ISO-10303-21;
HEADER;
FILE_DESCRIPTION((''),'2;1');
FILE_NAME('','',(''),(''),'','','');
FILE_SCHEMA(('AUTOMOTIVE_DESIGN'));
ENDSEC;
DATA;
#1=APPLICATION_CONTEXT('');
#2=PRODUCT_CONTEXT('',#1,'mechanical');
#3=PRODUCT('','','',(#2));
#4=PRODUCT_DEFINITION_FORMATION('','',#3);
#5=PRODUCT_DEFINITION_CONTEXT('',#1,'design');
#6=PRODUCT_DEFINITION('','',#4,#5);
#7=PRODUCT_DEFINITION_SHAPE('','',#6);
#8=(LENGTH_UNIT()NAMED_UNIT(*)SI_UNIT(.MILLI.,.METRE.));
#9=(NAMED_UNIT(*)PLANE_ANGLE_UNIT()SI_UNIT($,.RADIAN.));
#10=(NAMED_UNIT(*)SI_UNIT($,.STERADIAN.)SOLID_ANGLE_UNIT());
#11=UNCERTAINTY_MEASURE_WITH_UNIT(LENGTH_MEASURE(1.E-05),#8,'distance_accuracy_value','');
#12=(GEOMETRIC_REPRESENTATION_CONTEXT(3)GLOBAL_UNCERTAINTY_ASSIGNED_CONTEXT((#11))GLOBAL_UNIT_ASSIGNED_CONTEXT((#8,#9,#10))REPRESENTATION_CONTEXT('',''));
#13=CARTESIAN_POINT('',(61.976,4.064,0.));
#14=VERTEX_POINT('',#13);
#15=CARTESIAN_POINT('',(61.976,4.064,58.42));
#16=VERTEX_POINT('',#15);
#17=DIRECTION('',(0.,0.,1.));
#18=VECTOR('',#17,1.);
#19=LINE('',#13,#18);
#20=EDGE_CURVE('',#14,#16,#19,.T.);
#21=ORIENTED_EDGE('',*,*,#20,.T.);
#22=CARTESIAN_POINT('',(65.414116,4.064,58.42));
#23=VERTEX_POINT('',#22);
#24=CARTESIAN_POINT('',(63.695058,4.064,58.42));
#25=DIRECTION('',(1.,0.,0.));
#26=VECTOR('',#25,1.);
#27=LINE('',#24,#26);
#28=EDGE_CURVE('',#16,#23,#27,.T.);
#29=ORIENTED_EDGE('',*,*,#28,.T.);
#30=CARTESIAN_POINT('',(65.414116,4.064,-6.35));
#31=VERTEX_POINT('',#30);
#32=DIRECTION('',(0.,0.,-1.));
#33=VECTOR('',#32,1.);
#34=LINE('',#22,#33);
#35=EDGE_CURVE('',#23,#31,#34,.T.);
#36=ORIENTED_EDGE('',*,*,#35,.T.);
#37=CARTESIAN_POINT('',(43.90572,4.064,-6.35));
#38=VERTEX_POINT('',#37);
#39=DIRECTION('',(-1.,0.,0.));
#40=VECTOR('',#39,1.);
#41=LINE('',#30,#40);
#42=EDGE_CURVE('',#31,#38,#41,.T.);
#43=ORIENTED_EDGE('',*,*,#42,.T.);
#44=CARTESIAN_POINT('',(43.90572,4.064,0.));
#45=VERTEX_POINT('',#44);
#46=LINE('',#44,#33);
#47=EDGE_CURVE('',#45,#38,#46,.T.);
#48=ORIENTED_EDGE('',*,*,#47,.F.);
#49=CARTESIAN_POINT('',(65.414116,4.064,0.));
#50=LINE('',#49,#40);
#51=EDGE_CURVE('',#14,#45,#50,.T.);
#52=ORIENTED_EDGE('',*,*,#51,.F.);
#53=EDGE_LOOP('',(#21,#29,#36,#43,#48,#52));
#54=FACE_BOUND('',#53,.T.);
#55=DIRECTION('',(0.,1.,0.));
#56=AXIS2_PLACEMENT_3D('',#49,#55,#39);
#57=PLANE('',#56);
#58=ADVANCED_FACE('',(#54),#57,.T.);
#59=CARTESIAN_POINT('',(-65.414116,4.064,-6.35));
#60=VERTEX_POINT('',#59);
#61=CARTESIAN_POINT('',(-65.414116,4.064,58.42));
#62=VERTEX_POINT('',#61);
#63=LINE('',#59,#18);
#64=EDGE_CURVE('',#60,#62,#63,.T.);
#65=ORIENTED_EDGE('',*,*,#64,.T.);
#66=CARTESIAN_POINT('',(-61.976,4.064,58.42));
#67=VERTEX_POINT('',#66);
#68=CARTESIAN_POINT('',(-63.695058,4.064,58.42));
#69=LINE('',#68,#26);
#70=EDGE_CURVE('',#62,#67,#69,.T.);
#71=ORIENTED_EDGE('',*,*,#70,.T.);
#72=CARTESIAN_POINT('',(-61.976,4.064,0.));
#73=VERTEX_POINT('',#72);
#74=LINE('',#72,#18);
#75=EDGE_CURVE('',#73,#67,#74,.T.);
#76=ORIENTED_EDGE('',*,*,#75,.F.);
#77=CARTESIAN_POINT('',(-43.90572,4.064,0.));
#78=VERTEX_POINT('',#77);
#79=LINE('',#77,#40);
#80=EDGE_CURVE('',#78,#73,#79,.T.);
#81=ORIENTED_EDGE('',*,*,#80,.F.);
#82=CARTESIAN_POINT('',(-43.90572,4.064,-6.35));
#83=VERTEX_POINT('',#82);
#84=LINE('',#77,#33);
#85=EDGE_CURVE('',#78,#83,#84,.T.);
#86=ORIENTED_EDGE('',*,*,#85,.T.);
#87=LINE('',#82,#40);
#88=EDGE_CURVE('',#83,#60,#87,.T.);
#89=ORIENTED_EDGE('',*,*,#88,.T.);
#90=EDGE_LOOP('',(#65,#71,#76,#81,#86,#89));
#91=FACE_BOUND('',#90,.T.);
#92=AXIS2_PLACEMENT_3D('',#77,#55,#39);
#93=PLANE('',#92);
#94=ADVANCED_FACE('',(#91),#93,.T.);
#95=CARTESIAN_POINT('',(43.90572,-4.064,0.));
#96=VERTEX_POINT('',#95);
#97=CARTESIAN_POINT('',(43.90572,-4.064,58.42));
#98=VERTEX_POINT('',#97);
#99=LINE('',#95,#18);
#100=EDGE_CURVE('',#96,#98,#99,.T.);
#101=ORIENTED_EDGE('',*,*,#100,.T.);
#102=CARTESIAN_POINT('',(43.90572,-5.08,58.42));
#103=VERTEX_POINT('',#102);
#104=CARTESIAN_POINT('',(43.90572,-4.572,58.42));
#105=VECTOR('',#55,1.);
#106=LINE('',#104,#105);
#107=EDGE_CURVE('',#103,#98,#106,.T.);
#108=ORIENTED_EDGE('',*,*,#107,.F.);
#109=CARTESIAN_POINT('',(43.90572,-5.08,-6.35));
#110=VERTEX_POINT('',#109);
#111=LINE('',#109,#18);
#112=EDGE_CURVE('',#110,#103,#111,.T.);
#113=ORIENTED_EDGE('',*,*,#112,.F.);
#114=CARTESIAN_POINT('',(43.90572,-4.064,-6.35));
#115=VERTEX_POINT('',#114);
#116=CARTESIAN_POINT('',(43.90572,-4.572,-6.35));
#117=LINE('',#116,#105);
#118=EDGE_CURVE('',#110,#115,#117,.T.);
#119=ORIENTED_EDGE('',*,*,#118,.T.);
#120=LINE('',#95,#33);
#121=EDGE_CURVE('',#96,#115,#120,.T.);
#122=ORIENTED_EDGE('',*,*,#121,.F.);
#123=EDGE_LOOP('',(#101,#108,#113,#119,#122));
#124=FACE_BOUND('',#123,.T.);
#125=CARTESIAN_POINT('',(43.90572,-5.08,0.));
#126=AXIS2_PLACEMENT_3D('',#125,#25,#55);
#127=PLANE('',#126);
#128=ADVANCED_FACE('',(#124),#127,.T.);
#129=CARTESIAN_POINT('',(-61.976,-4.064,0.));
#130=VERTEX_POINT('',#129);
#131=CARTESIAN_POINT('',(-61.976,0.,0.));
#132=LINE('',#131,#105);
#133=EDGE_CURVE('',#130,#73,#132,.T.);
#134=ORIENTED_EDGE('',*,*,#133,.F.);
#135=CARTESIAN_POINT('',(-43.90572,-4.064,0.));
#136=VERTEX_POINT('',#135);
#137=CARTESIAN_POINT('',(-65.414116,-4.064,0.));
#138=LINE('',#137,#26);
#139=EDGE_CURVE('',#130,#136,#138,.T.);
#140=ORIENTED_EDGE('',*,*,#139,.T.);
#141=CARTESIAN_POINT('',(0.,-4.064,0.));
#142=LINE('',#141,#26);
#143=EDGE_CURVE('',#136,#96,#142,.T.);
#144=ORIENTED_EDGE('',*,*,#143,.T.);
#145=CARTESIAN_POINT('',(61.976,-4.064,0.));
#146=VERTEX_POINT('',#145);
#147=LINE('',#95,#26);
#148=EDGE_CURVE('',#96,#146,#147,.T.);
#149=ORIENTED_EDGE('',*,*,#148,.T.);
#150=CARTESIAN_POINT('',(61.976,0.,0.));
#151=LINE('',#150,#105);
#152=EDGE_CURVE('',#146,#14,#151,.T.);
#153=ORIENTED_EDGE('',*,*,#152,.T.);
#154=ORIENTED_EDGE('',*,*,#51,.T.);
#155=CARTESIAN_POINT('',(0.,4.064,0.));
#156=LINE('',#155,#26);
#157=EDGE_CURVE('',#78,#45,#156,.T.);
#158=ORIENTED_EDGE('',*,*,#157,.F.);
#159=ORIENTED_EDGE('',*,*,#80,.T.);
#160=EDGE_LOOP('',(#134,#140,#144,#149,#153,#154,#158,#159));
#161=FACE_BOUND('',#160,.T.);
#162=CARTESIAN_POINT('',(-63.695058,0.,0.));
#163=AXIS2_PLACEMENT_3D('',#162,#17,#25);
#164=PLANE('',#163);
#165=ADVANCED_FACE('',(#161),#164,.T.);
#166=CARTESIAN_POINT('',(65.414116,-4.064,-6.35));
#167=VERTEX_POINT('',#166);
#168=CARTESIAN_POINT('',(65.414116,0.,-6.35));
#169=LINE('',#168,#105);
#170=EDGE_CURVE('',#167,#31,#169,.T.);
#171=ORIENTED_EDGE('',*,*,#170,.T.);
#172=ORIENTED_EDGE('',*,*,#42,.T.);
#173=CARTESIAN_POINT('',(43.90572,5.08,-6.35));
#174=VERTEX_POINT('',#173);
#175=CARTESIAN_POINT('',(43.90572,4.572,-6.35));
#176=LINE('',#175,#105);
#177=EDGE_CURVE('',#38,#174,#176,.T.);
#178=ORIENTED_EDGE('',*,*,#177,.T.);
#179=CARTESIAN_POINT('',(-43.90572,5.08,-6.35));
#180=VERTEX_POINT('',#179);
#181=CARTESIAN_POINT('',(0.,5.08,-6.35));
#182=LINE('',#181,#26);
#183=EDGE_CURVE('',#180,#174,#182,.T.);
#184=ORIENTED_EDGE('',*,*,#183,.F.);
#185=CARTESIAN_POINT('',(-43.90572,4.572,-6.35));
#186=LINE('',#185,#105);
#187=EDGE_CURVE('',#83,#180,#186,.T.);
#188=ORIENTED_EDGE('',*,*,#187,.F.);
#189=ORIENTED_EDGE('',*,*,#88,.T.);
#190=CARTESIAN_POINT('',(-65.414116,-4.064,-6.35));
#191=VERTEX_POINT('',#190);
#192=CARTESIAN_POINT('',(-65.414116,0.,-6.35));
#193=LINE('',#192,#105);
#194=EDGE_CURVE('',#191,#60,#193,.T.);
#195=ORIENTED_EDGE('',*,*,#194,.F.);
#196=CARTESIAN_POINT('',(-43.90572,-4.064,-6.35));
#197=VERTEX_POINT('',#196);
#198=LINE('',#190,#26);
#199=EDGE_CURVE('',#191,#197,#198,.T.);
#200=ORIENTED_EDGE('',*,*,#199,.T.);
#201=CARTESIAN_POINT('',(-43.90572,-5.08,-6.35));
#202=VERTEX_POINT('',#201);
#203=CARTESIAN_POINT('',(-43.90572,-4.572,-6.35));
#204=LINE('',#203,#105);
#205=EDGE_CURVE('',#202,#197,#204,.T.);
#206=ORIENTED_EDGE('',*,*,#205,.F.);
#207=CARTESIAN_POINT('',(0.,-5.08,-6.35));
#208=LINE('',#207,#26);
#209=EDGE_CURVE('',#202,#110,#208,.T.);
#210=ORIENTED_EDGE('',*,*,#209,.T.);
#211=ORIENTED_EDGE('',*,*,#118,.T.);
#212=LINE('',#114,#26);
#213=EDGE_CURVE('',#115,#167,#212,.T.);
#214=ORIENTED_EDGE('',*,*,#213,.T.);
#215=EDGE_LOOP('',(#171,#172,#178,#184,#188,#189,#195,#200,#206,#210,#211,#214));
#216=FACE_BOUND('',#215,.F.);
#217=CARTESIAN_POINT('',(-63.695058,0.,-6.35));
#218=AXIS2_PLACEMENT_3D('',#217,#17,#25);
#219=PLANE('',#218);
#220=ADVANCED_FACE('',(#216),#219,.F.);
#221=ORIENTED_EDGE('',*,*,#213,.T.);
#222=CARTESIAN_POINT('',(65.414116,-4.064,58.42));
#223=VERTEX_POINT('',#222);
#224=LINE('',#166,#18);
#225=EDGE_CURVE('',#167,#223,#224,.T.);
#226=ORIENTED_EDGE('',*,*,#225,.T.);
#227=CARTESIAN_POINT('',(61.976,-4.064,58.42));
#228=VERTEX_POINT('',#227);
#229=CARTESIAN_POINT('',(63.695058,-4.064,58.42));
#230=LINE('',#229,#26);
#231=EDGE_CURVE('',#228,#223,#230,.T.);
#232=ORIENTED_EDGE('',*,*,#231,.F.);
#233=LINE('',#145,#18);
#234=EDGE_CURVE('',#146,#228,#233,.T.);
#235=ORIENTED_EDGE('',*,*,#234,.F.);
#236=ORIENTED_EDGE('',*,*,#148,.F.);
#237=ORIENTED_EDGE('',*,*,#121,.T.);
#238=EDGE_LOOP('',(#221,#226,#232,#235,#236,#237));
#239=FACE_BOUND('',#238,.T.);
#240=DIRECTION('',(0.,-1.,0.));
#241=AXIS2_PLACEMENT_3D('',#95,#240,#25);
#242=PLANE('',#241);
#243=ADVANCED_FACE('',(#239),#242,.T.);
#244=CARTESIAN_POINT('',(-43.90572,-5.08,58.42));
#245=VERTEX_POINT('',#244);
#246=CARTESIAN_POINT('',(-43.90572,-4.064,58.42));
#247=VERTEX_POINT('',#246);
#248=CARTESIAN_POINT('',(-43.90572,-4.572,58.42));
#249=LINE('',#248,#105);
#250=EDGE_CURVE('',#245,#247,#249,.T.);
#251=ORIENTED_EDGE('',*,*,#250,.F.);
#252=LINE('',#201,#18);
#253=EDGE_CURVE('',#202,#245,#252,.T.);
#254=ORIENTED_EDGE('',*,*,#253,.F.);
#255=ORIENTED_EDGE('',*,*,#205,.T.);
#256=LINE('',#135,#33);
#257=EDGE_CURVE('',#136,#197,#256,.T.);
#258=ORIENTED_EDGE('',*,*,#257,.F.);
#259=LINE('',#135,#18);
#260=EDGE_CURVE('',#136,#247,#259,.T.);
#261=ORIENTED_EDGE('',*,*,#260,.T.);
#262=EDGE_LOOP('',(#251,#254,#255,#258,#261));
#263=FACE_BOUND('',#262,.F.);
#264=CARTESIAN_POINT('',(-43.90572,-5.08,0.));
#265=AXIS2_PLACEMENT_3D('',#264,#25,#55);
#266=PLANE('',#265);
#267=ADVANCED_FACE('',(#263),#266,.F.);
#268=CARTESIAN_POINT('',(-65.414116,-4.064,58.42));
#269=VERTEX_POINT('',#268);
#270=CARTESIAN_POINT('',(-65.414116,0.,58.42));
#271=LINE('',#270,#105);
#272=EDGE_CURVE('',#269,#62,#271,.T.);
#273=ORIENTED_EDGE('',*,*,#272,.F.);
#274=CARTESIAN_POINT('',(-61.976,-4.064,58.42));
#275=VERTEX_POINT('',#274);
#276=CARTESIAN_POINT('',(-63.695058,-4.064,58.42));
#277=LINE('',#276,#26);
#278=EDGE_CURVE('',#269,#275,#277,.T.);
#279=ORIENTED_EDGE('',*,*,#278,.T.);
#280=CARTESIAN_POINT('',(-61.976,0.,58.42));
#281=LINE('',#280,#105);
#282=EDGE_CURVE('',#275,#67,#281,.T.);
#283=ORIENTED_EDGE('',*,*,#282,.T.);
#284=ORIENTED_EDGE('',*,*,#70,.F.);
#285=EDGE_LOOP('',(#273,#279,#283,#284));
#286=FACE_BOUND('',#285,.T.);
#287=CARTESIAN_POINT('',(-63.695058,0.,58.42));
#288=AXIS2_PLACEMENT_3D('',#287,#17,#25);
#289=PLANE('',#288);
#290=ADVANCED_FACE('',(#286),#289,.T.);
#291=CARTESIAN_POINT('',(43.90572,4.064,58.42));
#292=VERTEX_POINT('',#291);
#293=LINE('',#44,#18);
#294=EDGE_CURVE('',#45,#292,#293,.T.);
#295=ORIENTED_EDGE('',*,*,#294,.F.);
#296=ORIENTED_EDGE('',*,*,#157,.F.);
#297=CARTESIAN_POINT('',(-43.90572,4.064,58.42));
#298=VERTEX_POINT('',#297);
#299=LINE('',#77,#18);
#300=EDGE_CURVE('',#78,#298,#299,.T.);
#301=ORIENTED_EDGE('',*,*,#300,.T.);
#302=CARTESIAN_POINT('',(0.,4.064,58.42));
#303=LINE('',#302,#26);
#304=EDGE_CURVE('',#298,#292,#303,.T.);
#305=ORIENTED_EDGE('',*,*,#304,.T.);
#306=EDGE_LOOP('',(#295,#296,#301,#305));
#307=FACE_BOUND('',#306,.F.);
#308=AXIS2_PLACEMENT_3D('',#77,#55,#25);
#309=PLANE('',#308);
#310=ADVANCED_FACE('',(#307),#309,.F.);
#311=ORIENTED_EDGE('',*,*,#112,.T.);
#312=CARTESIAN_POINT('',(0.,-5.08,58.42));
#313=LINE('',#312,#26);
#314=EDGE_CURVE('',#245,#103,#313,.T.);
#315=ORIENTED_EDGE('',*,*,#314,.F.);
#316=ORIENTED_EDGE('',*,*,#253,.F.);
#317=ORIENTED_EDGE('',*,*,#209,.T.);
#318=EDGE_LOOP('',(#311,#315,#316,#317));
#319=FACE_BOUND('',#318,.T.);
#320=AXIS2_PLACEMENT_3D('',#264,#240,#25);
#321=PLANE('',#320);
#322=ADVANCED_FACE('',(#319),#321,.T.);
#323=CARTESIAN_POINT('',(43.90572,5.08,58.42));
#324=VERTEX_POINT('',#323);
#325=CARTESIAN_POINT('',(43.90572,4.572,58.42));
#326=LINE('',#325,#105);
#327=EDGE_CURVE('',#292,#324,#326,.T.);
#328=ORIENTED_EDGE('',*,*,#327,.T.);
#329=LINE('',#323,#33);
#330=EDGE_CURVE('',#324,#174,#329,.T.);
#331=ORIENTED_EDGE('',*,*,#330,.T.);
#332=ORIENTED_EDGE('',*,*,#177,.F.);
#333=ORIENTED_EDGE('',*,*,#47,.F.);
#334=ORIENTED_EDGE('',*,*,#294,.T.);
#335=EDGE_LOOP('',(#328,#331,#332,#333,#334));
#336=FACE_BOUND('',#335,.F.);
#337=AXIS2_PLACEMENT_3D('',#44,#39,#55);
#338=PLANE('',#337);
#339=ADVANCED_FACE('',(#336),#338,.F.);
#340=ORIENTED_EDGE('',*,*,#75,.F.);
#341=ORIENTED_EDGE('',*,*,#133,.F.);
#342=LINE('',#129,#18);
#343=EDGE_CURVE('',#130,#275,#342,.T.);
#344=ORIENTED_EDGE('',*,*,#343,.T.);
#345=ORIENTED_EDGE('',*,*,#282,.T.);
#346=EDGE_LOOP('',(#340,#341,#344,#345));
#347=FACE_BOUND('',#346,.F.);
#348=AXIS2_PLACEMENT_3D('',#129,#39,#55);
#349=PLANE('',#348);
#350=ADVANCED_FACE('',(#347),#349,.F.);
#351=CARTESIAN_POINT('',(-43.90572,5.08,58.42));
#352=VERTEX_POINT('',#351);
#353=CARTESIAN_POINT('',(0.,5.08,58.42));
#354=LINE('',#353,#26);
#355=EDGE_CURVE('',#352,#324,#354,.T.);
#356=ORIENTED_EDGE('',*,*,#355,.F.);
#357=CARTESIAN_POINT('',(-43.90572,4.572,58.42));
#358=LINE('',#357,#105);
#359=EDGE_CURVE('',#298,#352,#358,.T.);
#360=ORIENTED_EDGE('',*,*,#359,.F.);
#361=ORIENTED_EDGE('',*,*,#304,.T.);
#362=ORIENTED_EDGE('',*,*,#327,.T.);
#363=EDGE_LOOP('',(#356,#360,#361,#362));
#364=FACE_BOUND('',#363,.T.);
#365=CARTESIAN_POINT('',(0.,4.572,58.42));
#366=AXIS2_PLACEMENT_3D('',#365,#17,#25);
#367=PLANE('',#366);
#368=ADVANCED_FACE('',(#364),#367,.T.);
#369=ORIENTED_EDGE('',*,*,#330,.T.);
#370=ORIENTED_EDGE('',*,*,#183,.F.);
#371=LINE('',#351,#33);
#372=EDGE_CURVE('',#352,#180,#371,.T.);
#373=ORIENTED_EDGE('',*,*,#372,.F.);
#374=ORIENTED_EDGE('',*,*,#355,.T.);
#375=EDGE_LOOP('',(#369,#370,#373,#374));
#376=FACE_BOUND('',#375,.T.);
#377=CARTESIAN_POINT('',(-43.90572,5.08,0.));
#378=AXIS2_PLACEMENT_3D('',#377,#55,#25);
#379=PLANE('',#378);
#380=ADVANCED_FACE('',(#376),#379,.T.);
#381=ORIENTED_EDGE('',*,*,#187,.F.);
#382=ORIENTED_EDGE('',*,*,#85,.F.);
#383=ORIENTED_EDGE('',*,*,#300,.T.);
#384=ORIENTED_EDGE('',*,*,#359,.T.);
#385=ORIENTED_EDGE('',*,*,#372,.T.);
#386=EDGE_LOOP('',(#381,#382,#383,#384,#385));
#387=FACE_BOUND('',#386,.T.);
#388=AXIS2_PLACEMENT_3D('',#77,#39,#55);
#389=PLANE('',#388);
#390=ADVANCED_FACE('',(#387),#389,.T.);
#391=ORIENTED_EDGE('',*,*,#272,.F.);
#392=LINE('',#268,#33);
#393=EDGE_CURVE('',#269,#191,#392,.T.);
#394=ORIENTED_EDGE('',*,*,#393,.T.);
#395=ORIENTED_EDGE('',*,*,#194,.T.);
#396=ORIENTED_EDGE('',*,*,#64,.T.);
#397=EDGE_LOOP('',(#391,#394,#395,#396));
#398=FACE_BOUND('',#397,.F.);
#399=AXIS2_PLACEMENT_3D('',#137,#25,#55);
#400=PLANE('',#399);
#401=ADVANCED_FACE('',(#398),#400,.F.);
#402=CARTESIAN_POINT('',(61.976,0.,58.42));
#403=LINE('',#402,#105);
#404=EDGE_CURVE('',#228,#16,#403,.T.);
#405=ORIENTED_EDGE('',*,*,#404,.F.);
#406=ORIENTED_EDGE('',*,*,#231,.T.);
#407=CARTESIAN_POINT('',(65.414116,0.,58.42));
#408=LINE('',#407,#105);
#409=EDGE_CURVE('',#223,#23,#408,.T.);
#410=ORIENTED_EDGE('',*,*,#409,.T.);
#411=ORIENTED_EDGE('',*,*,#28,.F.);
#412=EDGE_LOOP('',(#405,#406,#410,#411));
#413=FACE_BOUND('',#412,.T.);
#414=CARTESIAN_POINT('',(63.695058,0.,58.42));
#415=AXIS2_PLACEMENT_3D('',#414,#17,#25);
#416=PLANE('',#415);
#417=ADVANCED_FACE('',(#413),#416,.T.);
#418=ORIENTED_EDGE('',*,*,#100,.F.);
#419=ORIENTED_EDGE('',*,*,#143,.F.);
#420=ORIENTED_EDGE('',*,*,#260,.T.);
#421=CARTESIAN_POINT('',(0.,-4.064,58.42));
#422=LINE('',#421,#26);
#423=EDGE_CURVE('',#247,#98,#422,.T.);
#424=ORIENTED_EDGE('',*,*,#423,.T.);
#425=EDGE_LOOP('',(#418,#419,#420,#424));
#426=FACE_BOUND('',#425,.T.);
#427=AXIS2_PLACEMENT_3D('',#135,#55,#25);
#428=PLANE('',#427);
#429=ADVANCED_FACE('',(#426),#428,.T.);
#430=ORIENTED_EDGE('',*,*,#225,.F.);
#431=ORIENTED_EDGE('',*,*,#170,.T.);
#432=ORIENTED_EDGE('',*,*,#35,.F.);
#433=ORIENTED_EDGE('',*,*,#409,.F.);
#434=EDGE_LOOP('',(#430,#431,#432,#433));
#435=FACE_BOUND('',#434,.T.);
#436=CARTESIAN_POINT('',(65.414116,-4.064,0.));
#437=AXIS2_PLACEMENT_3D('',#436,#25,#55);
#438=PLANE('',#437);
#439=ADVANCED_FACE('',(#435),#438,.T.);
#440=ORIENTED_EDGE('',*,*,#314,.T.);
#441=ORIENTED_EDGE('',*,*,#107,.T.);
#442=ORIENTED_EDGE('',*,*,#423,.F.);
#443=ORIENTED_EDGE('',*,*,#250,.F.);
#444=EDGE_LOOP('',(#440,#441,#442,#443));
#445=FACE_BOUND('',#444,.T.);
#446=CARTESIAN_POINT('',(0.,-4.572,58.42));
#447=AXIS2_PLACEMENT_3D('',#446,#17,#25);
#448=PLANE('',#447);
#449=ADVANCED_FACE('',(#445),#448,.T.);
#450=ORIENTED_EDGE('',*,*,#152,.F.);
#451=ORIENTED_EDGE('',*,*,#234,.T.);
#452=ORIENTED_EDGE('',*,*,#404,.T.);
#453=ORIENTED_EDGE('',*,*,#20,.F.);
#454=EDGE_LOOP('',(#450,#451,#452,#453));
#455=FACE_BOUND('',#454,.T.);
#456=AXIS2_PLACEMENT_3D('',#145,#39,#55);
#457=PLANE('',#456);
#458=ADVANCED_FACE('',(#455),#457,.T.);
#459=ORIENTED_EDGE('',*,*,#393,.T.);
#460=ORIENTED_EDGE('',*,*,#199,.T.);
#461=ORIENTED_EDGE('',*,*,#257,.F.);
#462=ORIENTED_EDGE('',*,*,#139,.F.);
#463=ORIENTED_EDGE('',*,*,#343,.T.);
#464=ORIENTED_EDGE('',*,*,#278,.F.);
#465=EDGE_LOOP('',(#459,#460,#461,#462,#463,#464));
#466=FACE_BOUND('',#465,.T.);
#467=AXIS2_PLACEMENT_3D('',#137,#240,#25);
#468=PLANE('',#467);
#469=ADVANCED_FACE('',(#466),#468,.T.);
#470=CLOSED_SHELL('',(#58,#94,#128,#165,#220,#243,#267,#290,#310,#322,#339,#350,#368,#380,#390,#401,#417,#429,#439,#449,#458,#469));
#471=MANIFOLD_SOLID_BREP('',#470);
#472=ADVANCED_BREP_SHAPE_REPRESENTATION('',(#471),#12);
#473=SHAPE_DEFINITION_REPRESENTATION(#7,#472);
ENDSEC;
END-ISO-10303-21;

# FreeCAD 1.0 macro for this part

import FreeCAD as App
import Part
import Sketcher
from FreeCAD import Vector
Q = App.Units.Quantity


def add_polygon(sketch, points):
    """Adds a closed chain of lines whose ends are joined by coincident constraints."""
    first, n = sketch.GeometryCount, len(points)
    for a, b in zip(points, points[1:] + points[:1]):
        sketch.addGeometry(Part.LineSegment(App.Vector(*a, 0), App.Vector(*b, 0)), False)
    for i in range(n):
        sketch.addConstraint(Sketcher.Constraint("Coincident", first + i, 2, first + (i + 1) % n, 1))

doc = App.newDocument("Part")
body = doc.addObject("PartDesign::Body", "Body")

sketch1 = doc.addObject("Sketcher::SketchObject", "Sketch")
body.addObject(sketch1)
sketch1.AttachmentSupport = (doc.XY_Plane, [""])
sketch1.MapMode = "FlatFace"
add_polygon(sketch1, [(-65.4, 4.1), (-65.4, -4.1), (-43.9, -4.1), (-43.9, -5.1), (43.9, -5.1), (43.9, -4.1), (65.4, -4.1), (65.4, 4.1), (43.9, 4.1), (43.9, 5.1), (-43.9, 5.1), (-43.9, 4.1)])
sketch1.addConstraint(Sketcher.Constraint("Vertical", 0))
sketch1.addConstraint(Sketcher.Constraint("Horizontal", 1))
sketch1.addConstraint(Sketcher.Constraint("Vertical", 2))
sketch1.addConstraint(Sketcher.Constraint("Horizontal", 3))
sketch1.addConstraint(Sketcher.Constraint("Vertical", 4))
sketch1.addConstraint(Sketcher.Constraint("Horizontal", 5))
sketch1.addConstraint(Sketcher.Constraint("Vertical", 6))
sketch1.addConstraint(Sketcher.Constraint("Horizontal", 7))
sketch1.addConstraint(Sketcher.Constraint("Vertical", 8))
sketch1.addConstraint(Sketcher.Constraint("Horizontal", 9))
sketch1.addConstraint(Sketcher.Constraint("Vertical", 10))
sketch1.addConstraint(Sketcher.Constraint("Horizontal", 11))
sketch1.addConstraint(Sketcher.Constraint("Symmetric", 0, 2, 6, 2, -1, 1))
sketch1.addConstraint(Sketcher.Constraint("Symmetric", 2, 2, 8, 2, -1, 1))
sketch1.addConstraint(Sketcher.Constraint("Symmetric", 4, 2, 10, 2, -1, 1))
sketch1.addConstraint(Sketcher.Constraint("Symmetric", 1, 2, 4, 2, -2))
sketch1.addConstraint(Sketcher.Constraint("DistanceY", 0, 2, 0, 1, Q("0.32 in")))
sketch1.addConstraint(Sketcher.Constraint("DistanceY", 2, 2, 2, 1, Q("0.04 in")))
sketch1.addConstraint(Sketcher.Constraint("DistanceX", 3, 1, 3, 2, Q("87.81144 mm")))
sketch1.addConstraint(Sketcher.Constraint("DistanceX", 1, 1, 1, 2, Q("21.508396 mm")))
pad1 = doc.addObject("PartDesign::Pad", "Pad")
body.addObject(pad1)
pad1.Profile = sketch1
pad1.Length = Q("0.25 in")
pad1.Reversed = True

sketch2 = doc.addObject("Sketcher::SketchObject", "Sketch001")
body.addObject(sketch2)
sketch2.AttachmentSupport = (doc.XY_Plane, [""])
sketch2.MapMode = "FlatFace"
add_polygon(sketch2, [(-43.9, 5.1), (-43.9, 4.1), (43.9, 4.1), (43.9, 5.1)])
add_polygon(sketch2, [(-65.4, 4.1), (-65.4, -4.1), (-62, -4.1), (-62, 4.1)])
add_polygon(sketch2, [(62, 4.1), (62, -4.1), (65.4, -4.1), (65.4, 4.1)])
add_polygon(sketch2, [(-43.9, -4.1), (-43.9, -5.1), (43.9, -5.1), (43.9, -4.1)])
sketch2.addConstraint(Sketcher.Constraint("Vertical", 0))
sketch2.addConstraint(Sketcher.Constraint("Horizontal", 1))
sketch2.addConstraint(Sketcher.Constraint("Vertical", 2))
sketch2.addConstraint(Sketcher.Constraint("Horizontal", 3))
sketch2.addConstraint(Sketcher.Constraint("Vertical", 4))
sketch2.addConstraint(Sketcher.Constraint("Horizontal", 5))
sketch2.addConstraint(Sketcher.Constraint("Vertical", 6))
sketch2.addConstraint(Sketcher.Constraint("Horizontal", 7))
sketch2.addConstraint(Sketcher.Constraint("Vertical", 8))
sketch2.addConstraint(Sketcher.Constraint("Horizontal", 9))
sketch2.addConstraint(Sketcher.Constraint("Vertical", 10))
sketch2.addConstraint(Sketcher.Constraint("Horizontal", 11))
sketch2.addConstraint(Sketcher.Constraint("Vertical", 12))
sketch2.addConstraint(Sketcher.Constraint("Horizontal", 13))
sketch2.addConstraint(Sketcher.Constraint("Vertical", 14))
sketch2.addConstraint(Sketcher.Constraint("Horizontal", 15))
sketch2.addConstraint(Sketcher.Constraint("Symmetric", 6, 2, 8, 2, -1, 1))
sketch2.addConstraint(Sketcher.Constraint("Symmetric", 4, 2, 10, 2, -1, 1))
sketch2.addConstraint(Sketcher.Constraint("Symmetric", 2, 2, 12, 2, -1, 1))
sketch2.addConstraint(Sketcher.Constraint("Symmetric", 0, 2, 14, 2, -1, 1))
sketch2.addConstraint(Sketcher.Constraint("Horizontal", 1, 2, 6, 2))
sketch2.addConstraint(Sketcher.Constraint("Horizontal", 5, 2, 8, 2))
sketch2.addConstraint(Sketcher.Constraint("Vertical", 3, 2, 12, 2))
sketch2.addConstraint(Sketcher.Constraint("DistanceY", 0, 2, 0, 1, Q("0.04 in")))
sketch2.addConstraint(Sketcher.Constraint("DistanceY", 4, 2, 4, 1, Q("0.32 in")))
sketch2.addConstraint(Sketcher.Constraint("DistanceX", 5, 2, -1, 1, Q("2.44 in")))
sketch2.addConstraint(Sketcher.Constraint("DistanceX", 1, 1, 1, 2, Q("87.81144 mm")))
sketch2.addConstraint(Sketcher.Constraint("DistanceX", 5, 1, 5, 2, Q("3.438116 mm")))
pad2 = doc.addObject("PartDesign::Pad", "Pad001")
body.addObject(pad2)
pad2.Profile = sketch2
pad2.Length = Q("2.3 in")

doc.recompute()
